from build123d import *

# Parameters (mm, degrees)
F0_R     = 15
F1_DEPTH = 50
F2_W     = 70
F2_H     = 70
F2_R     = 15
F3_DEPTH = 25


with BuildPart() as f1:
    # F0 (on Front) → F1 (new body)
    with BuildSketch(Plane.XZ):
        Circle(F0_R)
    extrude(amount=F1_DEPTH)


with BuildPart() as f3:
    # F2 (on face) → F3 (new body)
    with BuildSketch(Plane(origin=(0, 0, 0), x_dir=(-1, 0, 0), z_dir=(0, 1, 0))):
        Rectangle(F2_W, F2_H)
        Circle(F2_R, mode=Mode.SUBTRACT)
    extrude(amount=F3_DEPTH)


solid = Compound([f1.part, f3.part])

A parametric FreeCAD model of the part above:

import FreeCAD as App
import Part
import Sketcher

doc = App.newDocument("Part")
body = doc.addObject("PartDesign::Body", "Body")

# Sketch on XZ plane
sketch1 = body.newObject("Sketcher::SketchObject", "Sketch")
sketch1.AttachmentSupport = (doc.getObject("XZ_Plane"), [""])
sketch1.MapMode = "FlatFace"
sketch1.addGeometry(Part.Circle(App.Vector(0, 0, 0), App.Vector(0, 0, 1), 15), False)
sketch1.addConstraint([
    Sketcher.Constraint("Coincident", 0, 3, -1, 1),
    Sketcher.Constraint("Diameter", 0, 30.0),
])
pad1 = body.newObject("PartDesign::Pad", "Pad")
pad1.Profile = sketch1
pad1.Length = 50
body2 = doc.addObject("PartDesign::Body", "Body001")

# Sketch on XZ plane
sketch2 = body2.newObject("Sketcher::SketchObject", "Sketch001")
sketch2.AttachmentSupport = (doc.getObject("XZ_Plane001"), [""])
sketch2.MapMode = "FlatFace"
sketch2.addGeometry([
    Part.LineSegment(App.Vector(35, 35, 0), App.Vector(35, -35, 0)),  # 0
    Part.LineSegment(App.Vector(35, -35, 0), App.Vector(-35, -35, 0)),  # 1
    Part.LineSegment(App.Vector(-35, -35, 0), App.Vector(-35, 35, 0)),  # 2
    Part.LineSegment(App.Vector(-35, 35, 0), App.Vector(35, 35, 0)),  # 3
    Part.Circle(App.Vector(0, 0, 0), App.Vector(0, 0, 1), 15),  # 4
], False)
sketch2.addConstraint([
    Sketcher.Constraint("Coincident", 0, 2, 1, 1),
    Sketcher.Constraint("Coincident", 1, 2, 2, 1),
    Sketcher.Constraint("Coincident", 2, 2, 3, 1),
    Sketcher.Constraint("Coincident", 3, 2, 0, 1),
    Sketcher.Constraint("Vertical", 0),
    Sketcher.Constraint("Horizontal", 1),
    Sketcher.Constraint("Vertical", 2),
    Sketcher.Constraint("Horizontal", 3),
    Sketcher.Constraint("Coincident", 4, 3, -1, 1),
    Sketcher.Constraint("Symmetric", 0, 2, 2, 2, -1, 1),
    Sketcher.Constraint("Equal", 3, 0),
    Sketcher.Constraint("Diameter", 4, 30.0),
    Sketcher.Constraint("DistanceX", 1, 2, 1, 1, 70.0),
])
pad2 = body2.newObject("PartDesign::Pad", "Pad001")
pad2.Profile = sketch2
pad2.Length = 25
pad2.Reversed = True

doc.recompute()
